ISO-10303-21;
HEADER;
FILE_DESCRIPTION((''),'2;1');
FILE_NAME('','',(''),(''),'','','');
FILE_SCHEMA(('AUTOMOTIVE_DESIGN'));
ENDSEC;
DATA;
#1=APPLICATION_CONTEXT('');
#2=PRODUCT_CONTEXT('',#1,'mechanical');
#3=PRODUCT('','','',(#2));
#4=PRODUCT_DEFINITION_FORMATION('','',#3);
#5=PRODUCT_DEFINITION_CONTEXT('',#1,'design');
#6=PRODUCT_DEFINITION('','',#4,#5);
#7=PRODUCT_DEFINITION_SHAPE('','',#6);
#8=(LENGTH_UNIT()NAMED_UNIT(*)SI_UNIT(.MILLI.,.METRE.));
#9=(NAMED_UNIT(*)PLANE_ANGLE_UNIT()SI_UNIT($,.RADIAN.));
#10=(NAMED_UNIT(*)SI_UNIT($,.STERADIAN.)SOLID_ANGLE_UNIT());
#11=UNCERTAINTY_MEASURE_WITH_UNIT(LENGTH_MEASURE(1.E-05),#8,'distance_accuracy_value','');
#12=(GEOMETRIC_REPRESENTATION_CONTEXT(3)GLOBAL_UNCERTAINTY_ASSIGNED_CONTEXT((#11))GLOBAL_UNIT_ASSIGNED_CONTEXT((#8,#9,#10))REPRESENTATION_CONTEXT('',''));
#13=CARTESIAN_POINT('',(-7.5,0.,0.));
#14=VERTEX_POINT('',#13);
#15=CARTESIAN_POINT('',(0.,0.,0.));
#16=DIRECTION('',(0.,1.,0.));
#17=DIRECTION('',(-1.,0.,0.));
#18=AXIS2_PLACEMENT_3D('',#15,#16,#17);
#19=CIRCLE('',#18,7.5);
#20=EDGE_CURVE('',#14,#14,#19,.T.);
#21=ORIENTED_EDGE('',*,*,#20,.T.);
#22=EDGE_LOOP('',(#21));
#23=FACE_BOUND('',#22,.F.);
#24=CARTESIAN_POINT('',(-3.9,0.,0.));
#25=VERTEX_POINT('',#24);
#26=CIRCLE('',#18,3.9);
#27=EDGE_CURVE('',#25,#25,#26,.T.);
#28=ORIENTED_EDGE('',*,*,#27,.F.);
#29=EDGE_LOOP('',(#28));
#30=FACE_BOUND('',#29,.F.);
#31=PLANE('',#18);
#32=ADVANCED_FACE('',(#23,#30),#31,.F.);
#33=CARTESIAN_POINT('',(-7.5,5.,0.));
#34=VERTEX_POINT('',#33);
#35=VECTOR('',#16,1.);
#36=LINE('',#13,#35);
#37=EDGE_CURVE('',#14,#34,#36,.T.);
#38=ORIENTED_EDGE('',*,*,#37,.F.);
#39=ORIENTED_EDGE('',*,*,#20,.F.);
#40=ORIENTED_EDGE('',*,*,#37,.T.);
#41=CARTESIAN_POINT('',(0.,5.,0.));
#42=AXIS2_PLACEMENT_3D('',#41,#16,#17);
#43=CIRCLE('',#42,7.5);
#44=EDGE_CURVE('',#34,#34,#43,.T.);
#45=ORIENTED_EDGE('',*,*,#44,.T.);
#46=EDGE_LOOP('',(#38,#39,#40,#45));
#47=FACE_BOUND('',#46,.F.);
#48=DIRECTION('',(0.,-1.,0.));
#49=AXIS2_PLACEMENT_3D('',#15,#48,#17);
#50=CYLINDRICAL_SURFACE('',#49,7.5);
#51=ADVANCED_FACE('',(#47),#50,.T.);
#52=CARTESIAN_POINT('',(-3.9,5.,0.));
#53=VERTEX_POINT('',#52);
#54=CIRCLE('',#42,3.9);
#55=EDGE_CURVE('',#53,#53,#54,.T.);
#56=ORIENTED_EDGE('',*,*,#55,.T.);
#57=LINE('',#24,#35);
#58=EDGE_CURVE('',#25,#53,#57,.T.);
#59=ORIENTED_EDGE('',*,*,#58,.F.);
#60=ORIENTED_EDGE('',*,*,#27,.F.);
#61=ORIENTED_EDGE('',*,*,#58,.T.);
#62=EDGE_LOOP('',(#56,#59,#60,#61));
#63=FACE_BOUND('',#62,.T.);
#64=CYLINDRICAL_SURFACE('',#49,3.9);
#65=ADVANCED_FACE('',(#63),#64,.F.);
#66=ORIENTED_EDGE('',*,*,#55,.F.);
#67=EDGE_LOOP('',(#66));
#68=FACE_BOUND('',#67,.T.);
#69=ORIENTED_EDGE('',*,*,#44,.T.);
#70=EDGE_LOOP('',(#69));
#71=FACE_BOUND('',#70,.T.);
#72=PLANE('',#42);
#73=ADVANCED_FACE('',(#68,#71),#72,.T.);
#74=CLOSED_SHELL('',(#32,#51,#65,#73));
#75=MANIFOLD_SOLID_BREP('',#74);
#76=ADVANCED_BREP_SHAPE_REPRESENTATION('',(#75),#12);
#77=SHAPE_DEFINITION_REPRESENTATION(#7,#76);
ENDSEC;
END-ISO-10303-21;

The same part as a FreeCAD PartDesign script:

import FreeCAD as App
import Part
import Sketcher

V = App.Vector

doc = App.newDocument("Part")
params = doc.addObject("Spreadsheet::Sheet", "Params")
for row, (alias, value) in enumerate([
    ("sketch1_diameter", "15 mm"),
    ("sketch1_diameter2", "7.8 mm"),
    ("pad1_length", "5 mm"),
], start=1):
    params.set(f"A{row}", alias)
    params.set(f"B{row}", "=" + value)
    params.setAlias(f"B{row}", alias)

body = doc.addObject("PartDesign::Body", "Body")

# Sketch on XZ plane
sketch1 = body.newObject("Sketcher::SketchObject", "Sketch")
sketch1.AttachmentSupport = (doc.getObject("XZ_Plane"), [""])
sketch1.MapMode = "FlatFace"
sketch1.addGeometry(Part.Circle(V(0, 0, 0), V(0, 0, 1), 7.5), False)
sketch1.addGeometry(Part.Circle(V(0, 0, 0), V(0, 0, 1), 3.9), False)
sketch1.addConstraint(Sketcher.Constraint("Coincident", 0, 3, -1, 1))
sketch1.addConstraint(Sketcher.Constraint("Coincident", 1, 3, -1, 1))
sketch1.addConstraint(Sketcher.Constraint("Diameter", 0, 15.0))
sketch1.addConstraint(Sketcher.Constraint("Diameter", 1, 7.8))
sketch1.setExpression("Constraints[2]", "Params.sketch1_diameter")
sketch1.setExpression("Constraints[3]", "Params.sketch1_diameter2")
pad1 = body.newObject("PartDesign::Pad", "Pad")
pad1.Profile = sketch1
pad1.setExpression("Length", "Params.pad1_length")
pad1.Reversed = True

doc.recompute()
